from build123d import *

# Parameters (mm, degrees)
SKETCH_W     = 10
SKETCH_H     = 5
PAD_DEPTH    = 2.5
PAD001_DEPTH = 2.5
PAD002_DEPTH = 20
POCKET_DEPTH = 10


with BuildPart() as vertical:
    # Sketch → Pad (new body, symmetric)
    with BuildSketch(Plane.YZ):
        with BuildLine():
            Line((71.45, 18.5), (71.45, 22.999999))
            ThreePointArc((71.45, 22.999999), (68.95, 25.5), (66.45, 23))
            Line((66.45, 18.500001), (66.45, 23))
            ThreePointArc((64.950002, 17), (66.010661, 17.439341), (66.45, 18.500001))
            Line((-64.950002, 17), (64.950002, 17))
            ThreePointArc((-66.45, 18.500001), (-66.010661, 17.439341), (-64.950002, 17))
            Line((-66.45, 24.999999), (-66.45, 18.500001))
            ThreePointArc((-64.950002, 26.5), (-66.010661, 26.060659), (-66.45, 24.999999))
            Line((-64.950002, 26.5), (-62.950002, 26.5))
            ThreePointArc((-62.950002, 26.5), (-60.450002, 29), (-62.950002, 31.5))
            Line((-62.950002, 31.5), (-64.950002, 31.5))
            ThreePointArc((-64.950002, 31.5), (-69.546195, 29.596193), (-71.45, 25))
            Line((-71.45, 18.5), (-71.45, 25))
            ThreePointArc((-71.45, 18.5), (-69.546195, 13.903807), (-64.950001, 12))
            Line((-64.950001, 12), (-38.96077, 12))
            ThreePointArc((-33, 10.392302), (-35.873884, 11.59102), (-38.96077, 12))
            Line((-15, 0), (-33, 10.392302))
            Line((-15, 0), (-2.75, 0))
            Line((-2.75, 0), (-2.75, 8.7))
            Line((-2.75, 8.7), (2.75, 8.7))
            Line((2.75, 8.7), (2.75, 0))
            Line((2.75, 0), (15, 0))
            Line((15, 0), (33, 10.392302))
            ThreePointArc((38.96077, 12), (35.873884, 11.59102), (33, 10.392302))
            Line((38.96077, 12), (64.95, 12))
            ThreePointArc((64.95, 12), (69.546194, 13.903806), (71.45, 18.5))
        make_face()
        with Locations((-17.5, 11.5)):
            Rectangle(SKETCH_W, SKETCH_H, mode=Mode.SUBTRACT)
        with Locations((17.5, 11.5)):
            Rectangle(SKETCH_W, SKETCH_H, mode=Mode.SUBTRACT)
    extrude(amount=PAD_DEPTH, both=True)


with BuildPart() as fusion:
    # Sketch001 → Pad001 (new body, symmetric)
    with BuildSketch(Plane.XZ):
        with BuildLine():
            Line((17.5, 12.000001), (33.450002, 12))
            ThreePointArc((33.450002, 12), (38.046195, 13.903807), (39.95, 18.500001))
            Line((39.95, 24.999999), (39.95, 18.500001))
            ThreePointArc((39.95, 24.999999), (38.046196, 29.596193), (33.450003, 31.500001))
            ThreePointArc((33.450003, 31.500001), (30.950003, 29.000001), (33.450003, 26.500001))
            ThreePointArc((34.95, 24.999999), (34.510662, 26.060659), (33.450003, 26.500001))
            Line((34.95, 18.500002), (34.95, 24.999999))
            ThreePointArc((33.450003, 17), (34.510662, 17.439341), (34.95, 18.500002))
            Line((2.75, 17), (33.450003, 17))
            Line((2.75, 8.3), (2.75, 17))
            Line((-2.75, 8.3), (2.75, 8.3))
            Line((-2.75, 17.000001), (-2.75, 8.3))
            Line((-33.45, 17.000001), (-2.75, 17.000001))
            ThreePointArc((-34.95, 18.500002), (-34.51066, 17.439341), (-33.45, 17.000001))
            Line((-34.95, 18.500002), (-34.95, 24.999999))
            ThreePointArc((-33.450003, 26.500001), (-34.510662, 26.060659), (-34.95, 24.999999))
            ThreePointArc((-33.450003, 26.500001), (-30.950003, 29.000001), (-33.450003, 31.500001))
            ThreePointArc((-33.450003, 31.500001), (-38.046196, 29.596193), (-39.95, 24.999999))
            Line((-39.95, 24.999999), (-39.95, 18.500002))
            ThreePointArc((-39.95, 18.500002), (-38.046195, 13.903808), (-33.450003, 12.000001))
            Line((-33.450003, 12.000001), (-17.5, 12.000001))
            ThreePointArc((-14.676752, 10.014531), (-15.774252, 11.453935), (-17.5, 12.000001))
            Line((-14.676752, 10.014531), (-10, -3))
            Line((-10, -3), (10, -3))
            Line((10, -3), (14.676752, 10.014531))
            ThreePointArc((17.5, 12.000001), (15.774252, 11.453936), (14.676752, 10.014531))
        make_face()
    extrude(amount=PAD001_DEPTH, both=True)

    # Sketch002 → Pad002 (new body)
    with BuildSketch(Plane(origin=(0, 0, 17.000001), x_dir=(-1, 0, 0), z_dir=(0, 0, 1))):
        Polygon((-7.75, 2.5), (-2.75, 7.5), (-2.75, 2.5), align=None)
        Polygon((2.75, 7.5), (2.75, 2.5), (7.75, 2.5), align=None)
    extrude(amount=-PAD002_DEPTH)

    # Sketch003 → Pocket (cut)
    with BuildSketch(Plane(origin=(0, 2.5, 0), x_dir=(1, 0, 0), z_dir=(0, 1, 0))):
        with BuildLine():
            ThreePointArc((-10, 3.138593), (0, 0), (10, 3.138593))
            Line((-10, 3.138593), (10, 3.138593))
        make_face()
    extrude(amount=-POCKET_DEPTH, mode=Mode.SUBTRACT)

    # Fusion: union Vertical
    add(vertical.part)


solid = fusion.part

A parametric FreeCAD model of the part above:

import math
import FreeCAD as App
import Part
import Sketcher

V = App.Vector
Q = App.Units.Quantity


def add_polygon(sketch, points):
    """Adds a closed chain of lines whose ends are joined by coincident constraints."""
    first, n = sketch.GeometryCount, len(points)
    for a, b in zip(points, points[1:] + points[:1]):
        sketch.addGeometry(Part.LineSegment(App.Vector(*a, 0), App.Vector(*b, 0)), False)
    for i in range(n):
        sketch.addConstraint(Sketcher.Constraint("Coincident", first + i, 2, first + (i + 1) % n, 1))

doc = App.newDocument("Part")
body = doc.addObject("PartDesign::Body", "Body")

# Sketch on YZ plane
sketch1 = body.newObject("Sketcher::SketchObject", "Sketch")
sketch1.AttachmentSupport = (doc.getObject("YZ_Plane"), [""])
sketch1.MapMode = "FlatFace"
sketch1.addGeometry(Part.LineSegment(V(71.5, 18.5, 0), V(71.5, 23, 0)), False)  # 0
sketch1.addGeometry(Part.ArcOfCircle(Part.Circle(V(69, 23, 0), V(0, 0, 1), 2.5), math.radians(0), math.radians(180)), False)  # 1
sketch1.addGeometry(Part.LineSegment(V(66.5, 23, 0), V(66.5, 18.5, 0)), False)  # 2
sketch1.addGeometry(Part.ArcOfCircle(Part.Circle(V(64.9, 18.5, 0), V(0, 0, 1), 1.5), math.radians(-90), math.radians(0)), False)  # 3
sketch1.addGeometry(Part.LineSegment(V(65, 17, 0), V(-65, 17, 0)), False)  # 4
sketch1.addGeometry(Part.ArcOfCircle(Part.Circle(V(-64.9, 18.5, 0), V(0, 0, 1), 1.5), math.radians(180), math.radians(270)), False)  # 5
sketch1.addGeometry(Part.LineSegment(V(-66.5, 18.5, 0), V(-66.5, 25, 0)), False)  # 6
sketch1.addGeometry(Part.ArcOfCircle(Part.Circle(V(-64.9, 25, 0), V(0, 0, 1), 1.5), math.radians(90), math.radians(180)), False)  # 7
sketch1.addGeometry(Part.LineSegment(V(-65, 26.5, 0), V(-63, 26.5, 0)), False)  # 8
sketch1.addGeometry(Part.ArcOfCircle(Part.Circle(V(-63, 29, 0), V(0, 0, 1), 2.5), math.radians(-90), math.radians(90)), False)  # 9
sketch1.addGeometry(Part.LineSegment(V(-63, 31.5, 0), V(-65, 31.5, 0)), False)  # 10
sketch1.addGeometry(Part.ArcOfCircle(Part.Circle(V(-64.9, 25, 0), V(0, 0, 1), 6.5), math.radians(90), math.radians(180)), False)  # 11
sketch1.addGeometry(Part.LineSegment(V(-71.5, 25, 0), V(-71.5, 18.5, 0)), False)  # 12
sketch1.addGeometry(Part.ArcOfCircle(Part.Circle(V(-64.9, 18.5, 0), V(0, 0, 1), 6.5), math.radians(-180), math.radians(-90)), False)  # 13
sketch1.addGeometry(Part.LineSegment(V(-65, 12, 0), V(-39, 12, 0)), False)  # 14
sketch1.addGeometry(Part.ArcOfCircle(Part.Circle(V(-39, 0.1, 0), V(0, 0, 1), 11.9), math.radians(60), math.radians(90)), False)  # 15
sketch1.addGeometry(Part.LineSegment(V(-33, 10.4, 0), V(-15, 0, 0)), False)  # 16
sketch1.addGeometry(Part.LineSegment(V(-15, 0, 0), V(-2.8, 0, 0)), False)  # 17
sketch1.addGeometry(Part.LineSegment(V(-2.8, 0, 0), V(-2.8, 8.7, 0)), False)  # 18
sketch1.addGeometry(Part.LineSegment(V(-2.8, 8.7, 0), V(2.8, 8.7, 0)), False)  # 19
sketch1.addGeometry(Part.LineSegment(V(2.8, 8.7, 0), V(2.8, 0, 0)), False)  # 20
sketch1.addGeometry(Part.LineSegment(V(2.8, 0, 0), V(15, 0, 0)), False)  # 21
sketch1.addGeometry(Part.LineSegment(V(15, 0, 0), V(33, 10.4, 0)), False)  # 22
sketch1.addGeometry(Part.ArcOfCircle(Part.Circle(V(39, 0.1, 0), V(0, 0, 1), 11.9), math.radians(90), math.radians(120)), False)  # 23
sketch1.addGeometry(Part.LineSegment(V(39, 12, 0), V(65, 12, 0)), False)  # 24
sketch1.addGeometry(Part.ArcOfCircle(Part.Circle(V(64.9, 18.5, 0), V(0, 0, 1), 6.5), math.radians(-90), math.radians(0)), False)  # 25
add_polygon(sketch1, [(-12.5, 9), (-22.5, 9), (-22.5, 14), (-12.5, 14)])  # lines 26-29
add_polygon(sketch1, [(22.5, 9), (12.5, 9), (12.5, 14), (22.5, 14)])  # lines 30-33
sketch1.addConstraint(Sketcher.Constraint("Tangent", 0, 2, 1, 1))
sketch1.addConstraint(Sketcher.Constraint("Tangent", 1, 2, 2, 1))
sketch1.addConstraint(Sketcher.Constraint("Tangent", 2, 2, 3, 2))
sketch1.addConstraint(Sketcher.Constraint("Tangent", 3, 1, 4, 1))
sketch1.addConstraint(Sketcher.Constraint("Tangent", 4, 2, 5, 2))
sketch1.addConstraint(Sketcher.Constraint("Tangent", 5, 1, 6, 1))
sketch1.addConstraint(Sketcher.Constraint("Tangent", 6, 2, 7, 2))
sketch1.addConstraint(Sketcher.Constraint("Tangent", 7, 1, 8, 1))
sketch1.addConstraint(Sketcher.Constraint("Tangent", 8, 2, 9, 1))
sketch1.addConstraint(Sketcher.Constraint("Tangent", 9, 2, 10, 1))
sketch1.addConstraint(Sketcher.Constraint("Tangent", 10, 2, 11, 1))
sketch1.addConstraint(Sketcher.Constraint("Tangent", 11, 2, 12, 1))
sketch1.addConstraint(Sketcher.Constraint("Tangent", 12, 2, 13, 1))
sketch1.addConstraint(Sketcher.Constraint("Tangent", 13, 2, 14, 1))
sketch1.addConstraint(Sketcher.Constraint("Tangent", 14, 2, 15, 2))
sketch1.addConstraint(Sketcher.Constraint("Coincident", 15, 1, 16, 1))
sketch1.addConstraint(Sketcher.Constraint("Coincident", 16, 2, 17, 1))
sketch1.addConstraint(Sketcher.Constraint("Coincident", 17, 2, 18, 1))
sketch1.addConstraint(Sketcher.Constraint("Coincident", 18, 2, 19, 1))
sketch1.addConstraint(Sketcher.Constraint("Coincident", 19, 2, 20, 1))
sketch1.addConstraint(Sketcher.Constraint("Coincident", 20, 2, 21, 1))
sketch1.addConstraint(Sketcher.Constraint("Coincident", 21, 2, 22, 1))
sketch1.addConstraint(Sketcher.Constraint("Coincident", 22, 2, 23, 2))
sketch1.addConstraint(Sketcher.Constraint("Tangent", 23, 1, 24, 1))
sketch1.addConstraint(Sketcher.Constraint("Tangent", 24, 2, 25, 1))
sketch1.addConstraint(Sketcher.Constraint("Tangent", 25, 2, 0, 1))
sketch1.addConstraint(Sketcher.Constraint("Vertical", 0))
sketch1.addConstraint(Sketcher.Constraint("Vertical", 2))
sketch1.addConstraint(Sketcher.Constraint("Horizontal", 4))
sketch1.addConstraint(Sketcher.Constraint("Vertical", 6))
sketch1.addConstraint(Sketcher.Constraint("Horizontal", 8))
sketch1.addConstraint(Sketcher.Constraint("Horizontal", 10))
sketch1.addConstraint(Sketcher.Constraint("Vertical", 12))
sketch1.addConstraint(Sketcher.Constraint("Horizontal", 14))
sketch1.addConstraint(Sketcher.Constraint("Horizontal", 17))
sketch1.addConstraint(Sketcher.Constraint("Vertical", 18))
sketch1.addConstraint(Sketcher.Constraint("Horizontal", 19))
sketch1.addConstraint(Sketcher.Constraint("Vertical", 20))
sketch1.addConstraint(Sketcher.Constraint("Horizontal", 21))
sketch1.addConstraint(Sketcher.Constraint("Horizontal", 24))
sketch1.addConstraint(Sketcher.Constraint("Horizontal", 26))
sketch1.addConstraint(Sketcher.Constraint("Vertical", 27))
sketch1.addConstraint(Sketcher.Constraint("Horizontal", 28))
sketch1.addConstraint(Sketcher.Constraint("Vertical", 29))
sketch1.addConstraint(Sketcher.Constraint("Horizontal", 30))
sketch1.addConstraint(Sketcher.Constraint("Vertical", 31))
sketch1.addConstraint(Sketcher.Constraint("Horizontal", 32))
sketch1.addConstraint(Sketcher.Constraint("Vertical", 33))
sketch1.addConstraint(Sketcher.Constraint("Coincident", 11, 3, 7, 3))
sketch1.addConstraint(Sketcher.Constraint("Coincident", 13, 3, 5, 3))
sketch1.addConstraint(Sketcher.Constraint("Coincident", 25, 3, 3, 3))
sketch1.addConstraint(Sketcher.Constraint("Equal", 3, 5))
sketch1.addConstraint(Sketcher.Constraint("Equal", 5, 7))
sketch1.addConstraint(Sketcher.Constraint("Equal", 1, 9))
sketch1.addConstraint(Sketcher.Constraint("Equal", 15, 23))
sketch1.addConstraint(Sketcher.Constraint("Symmetric", 17, 2, 20, 2, -1, 1))
sketch1.addConstraint(Sketcher.Constraint("Symmetric", 16, 2, 21, 2, -2))
sketch1.addConstraint(Sketcher.Constraint("Symmetric", 15, 1, 22, 2, -2))
sketch1.addConstraint(Sketcher.Constraint("Symmetric", 29, 2, 30, 2, -2))
sketch1.addConstraint(Sketcher.Constraint("Symmetric", 27, 2, 32, 2, -2))
sketch1.addConstraint(Sketcher.Constraint("Equal", 14, 24))
sketch1.addConstraint(Sketcher.Constraint("Radius", 1, 2.5))
sketch1.addConstraint(Sketcher.Constraint("Radius", 3, 1.500001))
sketch1.addConstraint(Sketcher.Constraint("DistanceX", 8, 1, 8, 2, 2.0))
sketch1.addConstraint(Sketcher.Constraint("DistanceX", 26, 2, 26, 1, 10.0))
sketch1.addConstraint(Sketcher.Constraint("DistanceY", 27, 1, 27, 2, 5.0))
sketch1.addConstraint(Sketcher.Constraint("Angle", 16, Q("-29.999993 deg")))
sketch1.addConstraint(Sketcher.Constraint("DistanceX", 19, 1, 19, 2, 5.5))
sketch1.addConstraint(Sketcher.Constraint("DistanceY", 0, 1, 0, 2, 4.499999))
sketch1.addConstraint(Sketcher.Constraint("DistanceY", 12, 2, 12, 1, 6.5))
sketch1.addConstraint(Sketcher.Constraint("DistanceY", 18, 1, 18, 2, 8.7))
sketch1.addConstraint(Sketcher.Constraint("DistanceY", -1, 1, 1, 3, 23.0))
sketch1.addConstraint(Sketcher.Constraint("DistanceX", 15, 1, -1, 1, 33.0))
sketch1.addConstraint(Sketcher.Constraint("DistanceX", 16, 2, -1, 1, 15.0))
sketch1.addConstraint(Sketcher.Constraint("DistanceY", -1, 1, 26, 2, 9.0))
sketch1.addConstraint(Sketcher.Constraint("DistanceX", 26, 2, -1, 1, 22.5))
sketch1.addConstraint(Sketcher.Constraint("DistanceX", 5, 3, 3, 3, 129.899999))
sketch1.addConstraint(Sketcher.Constraint("Radius", 15, 11.854065))
pad1 = body.newObject("PartDesign::Pad", "Pad")
pad1.Profile = sketch1
pad1.Length = 5
pad1.Midplane = True
body2 = doc.addObject("PartDesign::Body", "Body001")
body2.AllowCompound = True

# Sketch on XZ plane
sketch2 = body2.newObject("Sketcher::SketchObject", "Sketch001")
sketch2.AttachmentSupport = (doc.getObject("XZ_Plane001"), [""])
sketch2.MapMode = "FlatFace"
sketch2.addGeometry(Part.LineSegment(V(17.5, 12, 0), V(33.5, 12, 0)), False)
sketch2.addGeometry(Part.ArcOfCircle(Part.Circle(V(33.4, 18.5, 0), V(0, 0, 1), 6.5), math.radians(-90), math.radians(0)), False)
sketch2.addGeometry(Part.LineSegment(V(40, 18.5, 0), V(40, 25, 0)), False)
sketch2.addGeometry(Part.ArcOfCircle(Part.Circle(V(33.4, 25, 0), V(0, 0, 1), 6.5), math.radians(0), math.radians(90)), False)
sketch2.addGeometry(Part.ArcOfCircle(Part.Circle(V(33.5, 29, 0), V(0, 0, 1), 2.5), math.radians(90), math.radians(270)), False)
sketch2.addGeometry(Part.ArcOfCircle(Part.Circle(V(33.4, 25, 0), V(0, 0, 1), 1.5), math.radians(0), math.radians(90)), False)
sketch2.addGeometry(Part.LineSegment(V(35, 25, 0), V(35, 18.5, 0)), False)
sketch2.addGeometry(Part.ArcOfCircle(Part.Circle(V(33.5, 18.5, 0), V(0, 0, 1), 1.5), math.radians(-90), math.radians(0)), False)
sketch2.addGeometry(Part.LineSegment(V(33.5, 17, 0), V(2.8, 17, 0)), False)
sketch2.addGeometry(Part.LineSegment(V(2.8, 17, 0), V(2.8, 8.3, 0)), False)
sketch2.addGeometry(Part.LineSegment(V(2.8, 8.3, 0), V(-2.8, 8.3, 0)), False)
sketch2.addGeometry(Part.LineSegment(V(-2.8, 8.3, 0), V(-2.8, 17, 0)), False)
sketch2.addGeometry(Part.LineSegment(V(-2.8, 17, 0), V(-33.5, 17, 0)), False)
sketch2.addGeometry(Part.ArcOfCircle(Part.Circle(V(-33.4, 18.5, 0), V(0, 0, 1), 1.5), math.radians(180), math.radians(270)), False)
sketch2.addGeometry(Part.LineSegment(V(-35, 18.5, 0), V(-35, 25, 0)), False)
sketch2.addGeometry(Part.ArcOfCircle(Part.Circle(V(-33.4, 25, 0), V(0, 0, 1), 1.5), math.radians(90), math.radians(180)), False)
sketch2.addGeometry(Part.ArcOfCircle(Part.Circle(V(-33.5, 29, 0), V(0, 0, 1), 2.5), math.radians(-90), math.radians(90)), False)
sketch2.addGeometry(Part.ArcOfCircle(Part.Circle(V(-33.4, 25, 0), V(0, 0, 1), 6.5), math.radians(90), math.radians(180)), False)
sketch2.addGeometry(Part.LineSegment(V(-40, 25, 0), V(-40, 18.5, 0)), False)
sketch2.addGeometry(Part.ArcOfCircle(Part.Circle(V(-33.4, 18.5, 0), V(0, 0, 1), 6.5), math.radians(180), math.radians(270)), False)
sketch2.addGeometry(Part.LineSegment(V(-33.5, 12, 0), V(-17.5, 12, 0)), False)
sketch2.addGeometry(Part.ArcOfCircle(Part.Circle(V(-17.5, 9, 0), V(0, 0, 1), 3), math.radians(20), math.radians(90)), False)
sketch2.addGeometry(Part.LineSegment(V(-14.7, 10, 0), V(-10, -3, 0)), False)
sketch2.addGeometry(Part.LineSegment(V(-10, -3, 0), V(10, -3, 0)), False)
sketch2.addGeometry(Part.LineSegment(V(10, -3, 0), V(14.7, 10, 0)), False)
sketch2.addGeometry(Part.ArcOfCircle(Part.Circle(V(17.5, 9, 0), V(0, 0, 1), 3), math.radians(90), math.radians(160)), False)
sketch2.addConstraint(Sketcher.Constraint("Tangent", 0, 2, 1, 1))
sketch2.addConstraint(Sketcher.Constraint("Tangent", 1, 2, 2, 1))
sketch2.addConstraint(Sketcher.Constraint("Tangent", 2, 2, 3, 1))
sketch2.addConstraint(Sketcher.Constraint("Tangent", 3, 2, 4, 1))
sketch2.addConstraint(Sketcher.Constraint("Coincident", 4, 2, 5, 2))
sketch2.addConstraint(Sketcher.Constraint("Tangent", 5, 1, 6, 1))
sketch2.addConstraint(Sketcher.Constraint("Coincident", 6, 2, 7, 2))
sketch2.addConstraint(Sketcher.Constraint("Tangent", 7, 1, 8, 1))
sketch2.addConstraint(Sketcher.Constraint("Coincident", 8, 2, 9, 1))
sketch2.addConstraint(Sketcher.Constraint("Coincident", 9, 2, 10, 1))
sketch2.addConstraint(Sketcher.Constraint("Coincident", 10, 2, 11, 1))
sketch2.addConstraint(Sketcher.Constraint("Coincident", 11, 2, 12, 1))
sketch2.addConstraint(Sketcher.Constraint("Tangent", 12, 2, 13, 2))
sketch2.addConstraint(Sketcher.Constraint("Tangent", 13, 1, 14, 1))
sketch2.addConstraint(Sketcher.Constraint("Tangent", 14, 2, 15, 2))
sketch2.addConstraint(Sketcher.Constraint("Coincident", 15, 1, 16, 1))
sketch2.addConstraint(Sketcher.Constraint("Tangent", 16, 2, 17, 1))
sketch2.addConstraint(Sketcher.Constraint("Tangent", 17, 2, 18, 1))
sketch2.addConstraint(Sketcher.Constraint("Tangent", 18, 2, 19, 1))
sketch2.addConstraint(Sketcher.Constraint("Tangent", 19, 2, 20, 1))
sketch2.addConstraint(Sketcher.Constraint("Tangent", 20, 2, 21, 2))
sketch2.addConstraint(Sketcher.Constraint("Tangent", 21, 1, 22, 1))
sketch2.addConstraint(Sketcher.Constraint("Coincident", 22, 2, 23, 1))
sketch2.addConstraint(Sketcher.Constraint("Coincident", 23, 2, 24, 1))
sketch2.addConstraint(Sketcher.Constraint("Tangent", 24, 2, 25, 2))
sketch2.addConstraint(Sketcher.Constraint("Tangent", 25, 1, 0, 1))
sketch2.addConstraint(Sketcher.Constraint("Horizontal", 0))
sketch2.addConstraint(Sketcher.Constraint("Vertical", 2))
sketch2.addConstraint(Sketcher.Constraint("Vertical", 6))
sketch2.addConstraint(Sketcher.Constraint("Horizontal", 8))
sketch2.addConstraint(Sketcher.Constraint("Vertical", 9))
sketch2.addConstraint(Sketcher.Constraint("Horizontal", 10))
sketch2.addConstraint(Sketcher.Constraint("Vertical", 11))
sketch2.addConstraint(Sketcher.Constraint("Horizontal", 12))
sketch2.addConstraint(Sketcher.Constraint("Vertical", 14))
sketch2.addConstraint(Sketcher.Constraint("Vertical", 18))
sketch2.addConstraint(Sketcher.Constraint("Horizontal", 20))
sketch2.addConstraint(Sketcher.Constraint("Horizontal", 23))
sketch2.addConstraint(Sketcher.Constraint("Coincident", 5, 3, 3, 3))
sketch2.addConstraint(Sketcher.Constraint("Coincident", 7, 3, 1, 3))
sketch2.addConstraint(Sketcher.Constraint("Coincident", 17, 3, 15, 3))
sketch2.addConstraint(Sketcher.Constraint("Coincident", 19, 3, 13, 3))
sketch2.addConstraint(Sketcher.Constraint("Equal", 1, 3))
sketch2.addConstraint(Sketcher.Constraint("Equal", 7, 13))
sketch2.addConstraint(Sketcher.Constraint("Equal", 13, 15))
sketch2.addConstraint(Sketcher.Constraint("Equal", 4, 16))
sketch2.addConstraint(Sketcher.Constraint("Symmetric", 1, 3, 13, 3, -2))
sketch2.addConstraint(Sketcher.Constraint("Symmetric", 4, 3, 16, 3, -2))
sketch2.addConstraint(Sketcher.Constraint("Symmetric", 21, 3, 25, 3, -2))
sketch2.addConstraint(Sketcher.Constraint("Horizontal", 1, 2, 6, 2))
sketch2.addConstraint(Sketcher.Constraint("Horizontal", 21, 1, 24, 2))
sketch2.addConstraint(Sketcher.Constraint("Vertical", 0, 2, 3, 2))
sketch2.addConstraint(Sketcher.Constraint("Vertical", 3, 2, 4, 2))
sketch2.addConstraint(Sketcher.Constraint("Vertical", 16, 3, 15, 1))
sketch2.addConstraint(Sketcher.Constraint("Radius", 21, 3.000002))
sketch2.addConstraint(Sketcher.Constraint("Radius", 1, 6.5))
sketch2.addConstraint(Sketcher.Constraint("Radius", 4, 2.5))
sketch2.addConstraint(Sketcher.Constraint("DistanceX", 23, 1, 23, 2, 20.0))
sketch2.addConstraint(Sketcher.Constraint("DistanceX", 10, 2, 10, 1, 5.5))
sketch2.addConstraint(Sketcher.Constraint("DistanceX", 12, 2, 12, 1, 30.7))
sketch2.addConstraint(Sketcher.Constraint("DistanceY", 9, 2, 9, 1, 8.7))
sketch2.addConstraint(Sketcher.Constraint("DistanceY", -1, 1, 3, 3, 25.000001))
sketch2.addConstraint(Sketcher.Constraint("DistanceY", -1, 1, 21, 3, 8.999999))
sketch2.addConstraint(Sketcher.Constraint("DistanceY", 22, 2, -1, 1, 3.0))
sketch2.addConstraint(Sketcher.Constraint("DistanceX", 0, 1, 0, 2, 15.950002))
sketch2.addConstraint(Sketcher.Constraint("DistanceX", 21, 3, -1, 1, 17.500001))
pad2 = body2.newObject("PartDesign::Pad", "Pad001")
pad2.Profile = sketch2
pad2.Length = 5
pad2.Midplane = True

# Sketch on XY plane
sketch3 = body2.newObject("Sketcher::SketchObject", "Sketch002")
sketch3.AttachmentSupport = (doc.getObject("XY_Plane001"), [""])
sketch3.MapMode = "FlatFace"
sketch3.AttachmentOffset = App.Placement(V(0, 0, 17.000001), App.Rotation())
add_polygon(sketch3, [(3, -8), (8, -2), (3, -2)])  # lines 0-2
add_polygon(sketch3, [(-3, -8), (-3, -2), (-8, -2)])  # lines 3-5
sketch3.addConstraint(Sketcher.Constraint("Horizontal", 1))
sketch3.addConstraint(Sketcher.Constraint("Vertical", 2))
sketch3.addConstraint(Sketcher.Constraint("Vertical", 3))
sketch3.addConstraint(Sketcher.Constraint("Horizontal", 4))
sketch3.addConstraint(Sketcher.Constraint("Symmetric", 1, 2, 3, 2, -2))
sketch3.addConstraint(Sketcher.Constraint("Perpendicular", 0, 5))
sketch3.addConstraint(Sketcher.Constraint("Horizontal", 2, 2, 5, 2))
sketch3.addConstraint(Sketcher.Constraint("Equal", 1, 4))
sketch3.addConstraint(Sketcher.Constraint("DistanceX", 1, 2, 1, 1, 5.0))
sketch3.addConstraint(Sketcher.Constraint("DistanceY", 0, 2, -1, 1, 2.5))
sketch3.addConstraint(Sketcher.Constraint("DistanceX", 3, 2, 1, 2, 5.5))
pad3 = body2.newObject("PartDesign::Pad", "Pad002")
pad3.Profile = sketch3
pad3.Length = 20
pad3.Reversed = True

# Sketch on XZ plane
sketch4 = body2.newObject("Sketcher::SketchObject", "Sketch003")
sketch4.AttachmentSupport = (doc.getObject("XZ_Plane001"), [""])
sketch4.MapMode = "FlatFace"
sketch4.AttachmentOffset = App.Placement(V(0, 0, -2.5), App.Rotation())
sketch4.addGeometry(Part.ArcOfCircle(Part.Circle(V(0, -18, 0), V(0, 0, 1), 18), math.radians(55), math.radians(125)), False)
sketch4.addGeometry(Part.LineSegment(V(10, -3, 0), V(-10, -3, 0)), False)
sketch4.addConstraint(Sketcher.Constraint("Coincident", 0, 1, 1, 1))
sketch4.addConstraint(Sketcher.Constraint("Coincident", 1, 2, 0, 2))
sketch4.addConstraint(Sketcher.Constraint("Horizontal", 1))
sketch4.addConstraint(Sketcher.Constraint("PointOnObject", 0, 3, -2))
sketch4.addConstraint(Sketcher.Constraint("Radius", 0, 17.500002))
sketch4.addConstraint(Sketcher.Constraint("DistanceX", 1, 2, 1, 1, 20.0))
sketch4.addConstraint(Sketcher.Constraint("DistanceY", 0, 3, -1, 1, 17.500002))
pocket1 = body2.newObject("PartDesign::Pocket", "Pocket")
pocket1.Profile = sketch4
pocket1.Length = 10
pocket1.Reversed = True
doc.recompute()

boolean = body2.newObject("PartDesign::Boolean", "Boolean")
boolean.Type = "Fuse"
boolean.addObjects([body])

doc.recompute()
